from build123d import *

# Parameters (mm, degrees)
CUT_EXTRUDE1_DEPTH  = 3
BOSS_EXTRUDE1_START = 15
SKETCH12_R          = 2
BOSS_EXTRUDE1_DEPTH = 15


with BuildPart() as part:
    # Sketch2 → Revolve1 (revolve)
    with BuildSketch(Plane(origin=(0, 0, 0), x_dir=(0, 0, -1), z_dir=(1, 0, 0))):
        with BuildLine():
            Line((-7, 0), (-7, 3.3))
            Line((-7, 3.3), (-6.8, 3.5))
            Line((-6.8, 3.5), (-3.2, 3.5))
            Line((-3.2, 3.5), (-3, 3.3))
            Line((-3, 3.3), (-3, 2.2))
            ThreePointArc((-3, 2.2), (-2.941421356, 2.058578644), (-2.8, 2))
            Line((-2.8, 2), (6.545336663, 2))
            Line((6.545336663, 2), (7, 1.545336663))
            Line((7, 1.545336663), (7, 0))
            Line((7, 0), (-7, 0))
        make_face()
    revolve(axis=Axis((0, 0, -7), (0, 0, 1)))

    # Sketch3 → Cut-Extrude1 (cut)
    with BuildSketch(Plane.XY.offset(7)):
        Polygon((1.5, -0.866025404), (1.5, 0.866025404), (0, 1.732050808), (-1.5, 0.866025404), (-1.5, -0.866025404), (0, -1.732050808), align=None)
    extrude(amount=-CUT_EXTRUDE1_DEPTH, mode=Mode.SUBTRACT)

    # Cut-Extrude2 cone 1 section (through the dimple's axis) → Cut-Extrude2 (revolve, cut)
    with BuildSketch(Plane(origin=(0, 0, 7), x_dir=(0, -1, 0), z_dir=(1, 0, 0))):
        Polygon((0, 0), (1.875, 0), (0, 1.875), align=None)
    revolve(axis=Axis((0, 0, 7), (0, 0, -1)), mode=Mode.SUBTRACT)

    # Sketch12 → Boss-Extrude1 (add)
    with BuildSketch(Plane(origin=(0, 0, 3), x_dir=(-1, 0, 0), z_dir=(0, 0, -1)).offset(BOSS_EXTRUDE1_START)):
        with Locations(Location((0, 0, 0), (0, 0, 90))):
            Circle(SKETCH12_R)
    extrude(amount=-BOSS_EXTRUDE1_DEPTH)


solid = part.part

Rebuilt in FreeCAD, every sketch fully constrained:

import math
import FreeCAD as App
import Part
import Sketcher

V = App.Vector
Q = App.Units.Quantity

doc = App.newDocument("Part")
body = doc.addObject("PartDesign::Body", "Body")

# Sketch on YZ plane
sketch1 = body.newObject("Sketcher::SketchObject", "Sketch")
sketch1.AttachmentSupport = (doc.getObject("YZ_Plane"), [""])
sketch1.MapMode = "FlatFace"
sketch1.addGeometry([
    Part.LineSegment(V(3.3, 7, 0), V(0, 7, 0)),  # 0
    Part.LineSegment(V(0, 7, 0), V(0, -7, 0)),  # 1
    Part.LineSegment(V(0, -7, 0), V(1.545337, -7, 0)),  # 2
    Part.LineSegment(V(1.545337, -7, 0), V(2, -6.545337, 0)),  # 3
    Part.LineSegment(V(2, -6.545337, 0), V(2, 2.8, 0)),  # 4
    Part.ArcOfCircle(Part.Circle(V(2.2, 2.8, 0), V(0, 0, 1), 0.2), math.radians(90), math.radians(180)),  # 5
    Part.LineSegment(V(2.2, 3, 0), V(3.3, 3, 0)),  # 6
    Part.LineSegment(V(3.3, 3, 0), V(3.5, 3.2, 0)),  # 7
    Part.LineSegment(V(3.5, 3.2, 0), V(3.5, 6.8, 0)),  # 8
    Part.LineSegment(V(3.5, 6.8, 0), V(3.3, 7, 0)),  # 9
], False)
sketch1.addConstraint([
    Sketcher.Constraint("Coincident", 0, 2, 1, 1),
    Sketcher.Constraint("Coincident", 1, 2, 2, 1),
    Sketcher.Constraint("Coincident", 2, 2, 3, 1),
    Sketcher.Constraint("Coincident", 3, 2, 4, 1),
    Sketcher.Constraint("Tangent", 4, 2, 5, 2),
    Sketcher.Constraint("Tangent", 5, 1, 6, 1),
    Sketcher.Constraint("Coincident", 6, 2, 7, 1),
    Sketcher.Constraint("Coincident", 7, 2, 8, 1),
    Sketcher.Constraint("Coincident", 8, 2, 9, 1),
    Sketcher.Constraint("Coincident", 9, 2, 0, 1),
    Sketcher.Constraint("Horizontal", 0),
    Sketcher.Constraint("Vertical", 1),
    Sketcher.Constraint("Horizontal", 2),
    Sketcher.Constraint("Vertical", 4),
    Sketcher.Constraint("Horizontal", 6),
    Sketcher.Constraint("Vertical", 8),
    Sketcher.Constraint("Symmetric", 0, 2, 1, 2, -1, 1),
    Sketcher.Constraint("Parallel", 3, 7),
    Sketcher.Constraint("Perpendicular", 7, 9),
    Sketcher.Constraint("Vertical", 6, 2, 9, 2),
    Sketcher.Constraint("Equal", 7, 9),
    Sketcher.Constraint("Radius", 5, 0.2),
    Sketcher.Constraint("DistanceY", 1, 2, 1, 1, 14.0),
    Sketcher.Constraint("DistanceX", 0, 2, 0, 1, 3.3),
    Sketcher.Constraint("DistanceX", 6, 1, 6, 2, 1.1),
    Sketcher.Constraint("DistanceY", 8, 1, 8, 2, 3.6),
    Sketcher.Constraint("DistanceY", -1, 1, 5, 1, 3.0),
    Sketcher.Constraint("Distance", 3, 0.642991),
])
revolution = body.newObject("PartDesign::Revolution", "Revolution")
revolution.Profile = sketch1
revolution.ReferenceAxis = (sketch1, ["V_Axis"])
revolution.Angle = 360

# Sketch on XY plane
sketch2 = body.newObject("Sketcher::SketchObject", "Sketch001")
sketch2.AttachmentSupport = (doc.getObject("XY_Plane"), [""])
sketch2.MapMode = "FlatFace"
sketch2.AttachmentOffset = App.Placement(V(0, 0, 7), App.Rotation())
sketch2.addGeometry([
    Part.LineSegment(V(1.5, -0.866025, 0), V(1.5, 0.866025, 0)),  # 0
    Part.LineSegment(V(1.5, 0.866025, 0), V(0, 1.732051, 0)),  # 1
    Part.LineSegment(V(0, 1.732051, 0), V(-1.5, 0.866025, 0)),  # 2
    Part.LineSegment(V(-1.5, 0.866025, 0), V(-1.5, -0.866025, 0)),  # 3
    Part.LineSegment(V(-1.5, -0.866025, 0), V(0, -1.732051, 0)),  # 4
    Part.LineSegment(V(0, -1.732051, 0), V(1.5, -0.866025, 0)),  # 5
], False)
sketch2.addConstraint([
    Sketcher.Constraint("Coincident", 0, 2, 1, 1),
    Sketcher.Constraint("Coincident", 1, 2, 2, 1),
    Sketcher.Constraint("Coincident", 2, 2, 3, 1),
    Sketcher.Constraint("Coincident", 3, 2, 4, 1),
    Sketcher.Constraint("Coincident", 4, 2, 5, 1),
    Sketcher.Constraint("Coincident", 5, 2, 0, 1),
    Sketcher.Constraint("Vertical", 0),
    Sketcher.Constraint("Vertical", 3),
    Sketcher.Constraint("Symmetric", 0, 2, 3, 2, -1, 1),
    Sketcher.Constraint("Symmetric", 1, 2, 4, 2, -1, 1),
    Sketcher.Constraint("PointOnObject", 1, 2, -2),
    Sketcher.Constraint("Parallel", 2, 5),
    Sketcher.Constraint("Horizontal", 0, 2, 2, 2),
    Sketcher.Constraint("Angle", 1, Q("150 deg")),
    Sketcher.Constraint("DistanceX", 2, 2, 0, 2, 3.0),
    Sketcher.Constraint("DistanceY", 0, 1, 0, 2, 1.732051),
])
pocket1 = body.newObject("PartDesign::Pocket", "Pocket")
pocket1.Profile = sketch2
pocket1.Length = 3

# Sketch on YZ plane
sketch3 = body.newObject("Sketcher::SketchObject", "Sketch002")
sketch3.AttachmentSupport = (doc.getObject("YZ_Plane"), [""])
sketch3.MapMode = "FlatFace"
sketch3.addGeometry([
    Part.LineSegment(V(0, 7, 0), V(-1.875, 7, 0)),
    Part.LineSegment(V(-1.875, 7, 0), V(0, 5.125, 0)),
    Part.LineSegment(V(0, 5.125, 0), V(0, 7, 0)),
], False)
sketch3.addConstraint([
    Sketcher.Constraint("Coincident", 0, 2, 1, 1),
    Sketcher.Constraint("Coincident", 1, 2, 2, 1),
    Sketcher.Constraint("Coincident", 2, 2, 0, 1),
    Sketcher.Constraint("Horizontal", 0),
    Sketcher.Constraint("Vertical", 2),
    Sketcher.Constraint("PointOnObject", 1, 2, -2),
    Sketcher.Constraint("Equal", 0, 2),
    Sketcher.Constraint("DistanceY", -1, 1, 0, 2, 7.0),
    Sketcher.Constraint("DistanceX", 0, 2, 0, 1, 1.875),
])
groove = body.newObject("PartDesign::Groove", "Groove")
groove.Profile = sketch3
groove.ReferenceAxis = (sketch3, ["V_Axis"])
groove.Angle = 360

# Sketch on XY plane
sketch4 = body.newObject("Sketcher::SketchObject", "Sketch003")
sketch4.AttachmentSupport = (doc.getObject("XY_Plane"), [""])
sketch4.MapMode = "FlatFace"
sketch4.AttachmentOffset = App.Placement(V(0, 0, -12), App.Rotation())
sketch4.addGeometry(Part.Circle(V(0, 0, 0), V(0, 0, 1), 2), False)
sketch4.addConstraint([
    Sketcher.Constraint("Coincident", 0, 3, -1, 1),
    Sketcher.Constraint("Diameter", 0, 4.0),
])
pad1 = body.newObject("PartDesign::Pad", "Pad")
pad1.Profile = sketch4
pad1.Length = 15

doc.recompute()
